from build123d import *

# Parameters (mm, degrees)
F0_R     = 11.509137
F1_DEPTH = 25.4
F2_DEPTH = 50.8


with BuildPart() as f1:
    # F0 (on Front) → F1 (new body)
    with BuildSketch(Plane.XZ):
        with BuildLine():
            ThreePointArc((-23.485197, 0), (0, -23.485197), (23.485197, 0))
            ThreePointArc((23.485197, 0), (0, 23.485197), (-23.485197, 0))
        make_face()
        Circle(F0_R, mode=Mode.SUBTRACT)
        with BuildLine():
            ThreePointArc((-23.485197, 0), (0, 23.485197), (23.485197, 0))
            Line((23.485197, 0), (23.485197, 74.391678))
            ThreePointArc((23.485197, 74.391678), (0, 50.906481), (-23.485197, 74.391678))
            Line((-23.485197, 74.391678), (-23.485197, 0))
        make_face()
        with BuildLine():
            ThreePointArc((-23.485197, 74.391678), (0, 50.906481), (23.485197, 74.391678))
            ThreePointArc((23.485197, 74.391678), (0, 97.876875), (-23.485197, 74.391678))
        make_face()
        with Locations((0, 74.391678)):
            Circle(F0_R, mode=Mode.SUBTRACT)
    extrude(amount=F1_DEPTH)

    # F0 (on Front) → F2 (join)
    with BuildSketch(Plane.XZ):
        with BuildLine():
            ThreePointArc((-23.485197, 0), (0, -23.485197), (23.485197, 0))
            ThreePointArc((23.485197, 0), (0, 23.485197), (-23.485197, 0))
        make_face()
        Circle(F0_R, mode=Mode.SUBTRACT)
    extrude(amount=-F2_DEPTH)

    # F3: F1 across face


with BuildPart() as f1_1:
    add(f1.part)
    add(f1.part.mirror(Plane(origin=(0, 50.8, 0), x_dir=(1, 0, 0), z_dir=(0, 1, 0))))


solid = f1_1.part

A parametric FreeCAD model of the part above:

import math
import FreeCAD as App
import Part
import Sketcher
Q = App.Units.Quantity

doc = App.newDocument("Part")
body = doc.addObject("PartDesign::Body", "Body")

# Sketch on XZ plane
sketch1 = body.newObject("Sketcher::SketchObject", "Sketch")
sketch1.AttachmentSupport = (doc.getObject("XZ_Plane"), [""])
sketch1.MapMode = "FlatFace"
sketch1.addGeometry([
    Part.ArcOfCircle(Part.Circle(App.Vector(0, 0, 0), App.Vector(0, 0, 1), 23), math.radians(180), math.radians(360)),  # 0
    Part.LineSegment(App.Vector(23, 0, 0), App.Vector(23, 74, 0)),  # 1
    Part.ArcOfCircle(Part.Circle(App.Vector(0, 74, 0), App.Vector(0, 0, 1), 23), math.radians(0), math.radians(180)),  # 2
    Part.LineSegment(App.Vector(-23, 74, 0), App.Vector(-23, 0, 0)),  # 3
    Part.Circle(App.Vector(0, 0, 0), App.Vector(0, 0, 1), 12),  # 4
    Part.Circle(App.Vector(0, 74, 0), App.Vector(0, 0, 1), 12),  # 5
], False)
sketch1.addConstraint([
    Sketcher.Constraint("Tangent", 0, 2, 1, 1),
    Sketcher.Constraint("Tangent", 1, 2, 2, 1),
    Sketcher.Constraint("Tangent", 2, 2, 3, 1),
    Sketcher.Constraint("Tangent", 3, 2, 0, 1),
    Sketcher.Constraint("Vertical", 1),
    Sketcher.Constraint("Vertical", 3),
    Sketcher.Constraint("Coincident", 0, 3, -1, 1),
    Sketcher.Constraint("Coincident", 4, 3, -1, 1),
    Sketcher.Constraint("Coincident", 5, 3, 2, 3),
    Sketcher.Constraint("Equal", 4, 5),
    Sketcher.Constraint("Diameter", 4, 23.018274),
    Sketcher.Constraint("Radius", 0, 23.485197),
    Sketcher.Constraint("DistanceY", 1, 1, 1, 2, 74.391678),
])
pad1 = body.newObject("PartDesign::Pad", "Pad")
pad1.Profile = sketch1
pad1.Length = Q("1 in")

# Sketch on XZ plane
sketch2 = body.newObject("Sketcher::SketchObject", "Sketch001")
sketch2.AttachmentSupport = (doc.getObject("XZ_Plane"), [""])
sketch2.MapMode = "FlatFace"
sketch2.addGeometry([
    Part.Circle(App.Vector(0, 0, 0), App.Vector(0, 0, 1), 23),
    Part.Circle(App.Vector(0, 0, 0), App.Vector(0, 0, 1), 12),
], False)
sketch2.addConstraint([
    Sketcher.Constraint("Coincident", 0, 3, -1, 1),
    Sketcher.Constraint("Coincident", 1, 3, -1, 1),
    Sketcher.Constraint("Diameter", 0, 46.970394),
    Sketcher.Constraint("Diameter", 1, 23.018274),
])
pad2 = body.newObject("PartDesign::Pad", "Pad001")
pad2.Profile = sketch2
pad2.Length = Q("2 in")
pad2.Reversed = True
body2 = doc.addObject("PartDesign::Body", "Body001")
doc.recompute()

body2.BaseFeature = body
doc.recompute()

mirroring = doc.addObject("Part::Mirroring", "Mirroring")
mirroring.Source = body
mirroring.Base = App.Vector(0, 50.8, 0)
mirroring.Normal = App.Vector(0, 1, 0)
body3 = doc.addObject("PartDesign::Body", "Body002")
body3.BaseFeature = mirroring
boolean = body2.newObject("PartDesign::Boolean", "Boolean")
boolean.Type = "Fuse"
boolean.addObjects([body3])
doc.recompute()
mirroring.Visibility = False

doc.recompute()
